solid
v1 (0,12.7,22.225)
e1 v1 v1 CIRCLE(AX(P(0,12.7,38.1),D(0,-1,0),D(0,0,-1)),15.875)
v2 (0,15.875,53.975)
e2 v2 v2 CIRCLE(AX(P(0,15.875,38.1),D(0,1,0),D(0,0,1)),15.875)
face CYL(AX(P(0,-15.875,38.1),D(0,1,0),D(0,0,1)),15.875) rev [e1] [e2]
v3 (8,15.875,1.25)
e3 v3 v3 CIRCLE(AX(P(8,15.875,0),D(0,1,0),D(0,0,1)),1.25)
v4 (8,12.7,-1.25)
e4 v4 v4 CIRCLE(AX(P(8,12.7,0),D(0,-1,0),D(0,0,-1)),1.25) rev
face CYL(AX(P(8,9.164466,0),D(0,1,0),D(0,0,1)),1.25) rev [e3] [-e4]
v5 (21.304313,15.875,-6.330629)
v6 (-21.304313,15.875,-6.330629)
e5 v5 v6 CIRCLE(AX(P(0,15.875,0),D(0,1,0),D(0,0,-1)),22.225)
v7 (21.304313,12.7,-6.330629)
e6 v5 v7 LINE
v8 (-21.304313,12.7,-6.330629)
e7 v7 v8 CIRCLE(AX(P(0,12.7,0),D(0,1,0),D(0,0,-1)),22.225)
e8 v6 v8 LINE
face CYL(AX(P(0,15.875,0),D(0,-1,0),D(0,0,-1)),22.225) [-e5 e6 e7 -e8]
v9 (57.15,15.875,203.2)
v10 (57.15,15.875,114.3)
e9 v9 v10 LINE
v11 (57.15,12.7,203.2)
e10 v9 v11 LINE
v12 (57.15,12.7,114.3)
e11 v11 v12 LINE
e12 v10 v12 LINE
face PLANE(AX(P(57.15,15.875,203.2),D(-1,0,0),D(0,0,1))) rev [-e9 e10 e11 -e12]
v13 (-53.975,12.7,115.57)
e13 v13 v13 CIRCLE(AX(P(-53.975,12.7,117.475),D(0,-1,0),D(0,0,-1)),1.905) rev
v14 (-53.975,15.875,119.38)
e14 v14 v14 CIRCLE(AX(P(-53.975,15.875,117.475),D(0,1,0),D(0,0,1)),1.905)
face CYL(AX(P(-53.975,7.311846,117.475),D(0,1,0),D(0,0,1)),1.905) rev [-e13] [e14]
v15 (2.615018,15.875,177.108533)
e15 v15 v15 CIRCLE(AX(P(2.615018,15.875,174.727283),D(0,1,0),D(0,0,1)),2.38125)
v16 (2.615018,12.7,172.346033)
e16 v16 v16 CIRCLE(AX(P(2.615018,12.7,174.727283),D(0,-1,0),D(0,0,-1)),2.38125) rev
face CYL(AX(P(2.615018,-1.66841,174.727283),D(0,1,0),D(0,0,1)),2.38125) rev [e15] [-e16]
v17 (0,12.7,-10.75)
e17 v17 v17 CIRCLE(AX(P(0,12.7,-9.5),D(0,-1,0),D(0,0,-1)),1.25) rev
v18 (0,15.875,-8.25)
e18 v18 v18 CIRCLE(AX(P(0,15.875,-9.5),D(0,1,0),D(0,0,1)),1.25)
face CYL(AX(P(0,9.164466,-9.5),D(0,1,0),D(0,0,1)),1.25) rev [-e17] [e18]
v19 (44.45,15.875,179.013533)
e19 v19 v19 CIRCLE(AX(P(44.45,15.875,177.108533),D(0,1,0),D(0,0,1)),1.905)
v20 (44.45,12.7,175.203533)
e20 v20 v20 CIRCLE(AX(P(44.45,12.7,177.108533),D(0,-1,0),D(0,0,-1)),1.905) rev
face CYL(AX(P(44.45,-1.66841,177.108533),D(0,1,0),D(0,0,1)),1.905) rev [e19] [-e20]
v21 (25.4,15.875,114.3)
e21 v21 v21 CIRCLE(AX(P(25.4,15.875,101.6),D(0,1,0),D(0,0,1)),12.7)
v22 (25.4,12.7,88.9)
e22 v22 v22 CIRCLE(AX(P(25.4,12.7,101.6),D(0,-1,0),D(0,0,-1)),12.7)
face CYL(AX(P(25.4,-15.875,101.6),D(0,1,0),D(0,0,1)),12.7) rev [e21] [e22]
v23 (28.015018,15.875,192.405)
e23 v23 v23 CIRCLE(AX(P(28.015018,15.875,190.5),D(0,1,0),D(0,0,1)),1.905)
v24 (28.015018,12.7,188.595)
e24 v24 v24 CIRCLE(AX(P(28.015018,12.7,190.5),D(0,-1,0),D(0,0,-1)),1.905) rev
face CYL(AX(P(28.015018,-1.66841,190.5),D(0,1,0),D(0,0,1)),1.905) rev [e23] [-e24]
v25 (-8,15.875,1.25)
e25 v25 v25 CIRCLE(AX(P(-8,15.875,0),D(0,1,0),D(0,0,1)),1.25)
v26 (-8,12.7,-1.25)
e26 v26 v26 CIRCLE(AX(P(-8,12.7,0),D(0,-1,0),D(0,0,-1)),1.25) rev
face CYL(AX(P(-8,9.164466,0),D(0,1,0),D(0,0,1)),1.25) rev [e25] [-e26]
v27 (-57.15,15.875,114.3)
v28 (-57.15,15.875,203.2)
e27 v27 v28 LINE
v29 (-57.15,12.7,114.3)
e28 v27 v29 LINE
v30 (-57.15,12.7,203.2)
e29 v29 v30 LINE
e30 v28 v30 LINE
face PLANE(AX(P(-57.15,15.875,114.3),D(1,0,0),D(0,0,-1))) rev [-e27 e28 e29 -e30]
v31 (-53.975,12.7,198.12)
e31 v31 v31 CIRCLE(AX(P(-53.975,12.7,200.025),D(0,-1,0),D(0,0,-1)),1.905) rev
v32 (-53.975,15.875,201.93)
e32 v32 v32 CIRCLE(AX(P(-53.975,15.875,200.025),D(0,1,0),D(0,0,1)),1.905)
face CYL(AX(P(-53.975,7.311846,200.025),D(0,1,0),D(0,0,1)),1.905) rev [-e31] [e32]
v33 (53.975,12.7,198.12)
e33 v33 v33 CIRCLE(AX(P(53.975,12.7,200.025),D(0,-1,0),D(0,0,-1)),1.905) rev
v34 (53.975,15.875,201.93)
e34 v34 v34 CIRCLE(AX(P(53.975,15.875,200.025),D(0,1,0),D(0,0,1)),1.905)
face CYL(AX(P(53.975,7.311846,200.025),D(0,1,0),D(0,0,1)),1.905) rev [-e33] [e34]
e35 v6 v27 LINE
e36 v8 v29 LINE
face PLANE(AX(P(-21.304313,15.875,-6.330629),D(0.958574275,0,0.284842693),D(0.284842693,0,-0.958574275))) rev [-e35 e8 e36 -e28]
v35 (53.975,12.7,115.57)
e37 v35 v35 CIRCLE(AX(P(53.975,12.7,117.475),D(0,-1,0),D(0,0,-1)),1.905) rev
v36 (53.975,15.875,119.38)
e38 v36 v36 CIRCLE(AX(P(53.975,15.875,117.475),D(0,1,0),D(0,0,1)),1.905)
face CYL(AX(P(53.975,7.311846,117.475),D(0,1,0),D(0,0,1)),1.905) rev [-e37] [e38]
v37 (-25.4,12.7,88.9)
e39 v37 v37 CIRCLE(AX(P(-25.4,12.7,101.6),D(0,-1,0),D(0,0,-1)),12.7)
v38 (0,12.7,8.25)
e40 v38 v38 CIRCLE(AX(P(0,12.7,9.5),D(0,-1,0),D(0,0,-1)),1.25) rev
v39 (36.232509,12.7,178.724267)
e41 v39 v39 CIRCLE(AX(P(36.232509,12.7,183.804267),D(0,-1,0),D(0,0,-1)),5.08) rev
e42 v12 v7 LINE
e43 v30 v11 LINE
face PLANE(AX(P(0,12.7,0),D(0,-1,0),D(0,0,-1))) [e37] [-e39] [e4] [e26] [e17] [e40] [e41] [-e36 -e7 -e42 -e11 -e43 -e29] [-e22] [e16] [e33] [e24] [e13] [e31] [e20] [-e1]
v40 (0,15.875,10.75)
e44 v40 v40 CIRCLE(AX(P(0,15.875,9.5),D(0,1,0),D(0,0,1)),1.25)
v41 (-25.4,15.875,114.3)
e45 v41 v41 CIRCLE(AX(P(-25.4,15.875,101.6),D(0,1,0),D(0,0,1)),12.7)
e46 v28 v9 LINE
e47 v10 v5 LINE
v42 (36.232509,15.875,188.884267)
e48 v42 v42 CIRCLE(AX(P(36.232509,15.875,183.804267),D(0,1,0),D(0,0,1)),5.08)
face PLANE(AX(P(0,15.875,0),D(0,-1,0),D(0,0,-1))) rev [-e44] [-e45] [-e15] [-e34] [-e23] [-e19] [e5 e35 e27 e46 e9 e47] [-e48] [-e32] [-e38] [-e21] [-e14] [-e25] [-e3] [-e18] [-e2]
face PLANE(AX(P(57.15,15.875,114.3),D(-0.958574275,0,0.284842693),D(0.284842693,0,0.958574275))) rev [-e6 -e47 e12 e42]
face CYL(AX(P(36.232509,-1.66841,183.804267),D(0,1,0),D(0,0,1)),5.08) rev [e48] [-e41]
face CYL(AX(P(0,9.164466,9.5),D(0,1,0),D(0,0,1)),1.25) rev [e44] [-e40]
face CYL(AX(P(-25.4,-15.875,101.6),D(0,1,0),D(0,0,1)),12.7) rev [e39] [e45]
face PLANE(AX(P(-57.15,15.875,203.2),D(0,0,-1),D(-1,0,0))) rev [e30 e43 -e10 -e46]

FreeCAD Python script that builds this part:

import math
import FreeCAD as App
import Part
import Sketcher
from FreeCAD import Vector
Q = App.Units.Quantity


def edges_at(feature, points):
    """Names of the edges that pass closest to the given points."""
    edges = feature.Shape.Edges
    near = lambda p: min(range(len(edges)), key=lambda i: edges[i].distToShape(Part.Vertex(*p))[0])
    return sorted({f"Edge{near(p) + 1}" for p in points})

doc = App.newDocument("Part")
body = doc.addObject("PartDesign::Body", "Body")

sketch1 = doc.addObject("Sketcher::SketchObject", "Sketch")
body.addObject(sketch1)
sketch1.AttachmentSupport = (doc.XZ_Plane, [""])
sketch1.MapMode = "FlatFace"
sketch1.addGeometry([
    Part.LineSegment(Vector(-57.15, 114.3, 0), Vector(-57.15, 203.2, 0)),
    Part.LineSegment(Vector(-57.15, 203.2, 0), Vector(57.15, 203.2, 0)),
    Part.LineSegment(Vector(57.15, 203.2, 0), Vector(57.15, 114.3, 0)),
    Part.LineSegment(Vector(57.15, 114.3, 0), Vector(-57.15, 114.3, 0)),
    Part.LineSegment(Vector(50.8, 196.85, 0), Vector(-50.8, 196.85, 0)),
    Part.LineSegment(Vector(-50.8, 196.85, 0), Vector(-50.8, 120.65, 0)),
    Part.LineSegment(Vector(-50.8, 120.65, 0), Vector(50.8, 120.65, 0)),
    Part.LineSegment(Vector(50.8, 120.65, 0), Vector(50.8, 196.85, 0)),
], False)
sketch1.addConstraint([
    Sketcher.Constraint("Coincident", 0, 2, 1, 1),
    Sketcher.Constraint("Coincident", 1, 2, 2, 1),
    Sketcher.Constraint("Coincident", 2, 2, 3, 1),
    Sketcher.Constraint("Coincident", 3, 2, 0, 1),
    Sketcher.Constraint("Coincident", 4, 2, 5, 1),
    Sketcher.Constraint("Coincident", 5, 2, 6, 1),
    Sketcher.Constraint("Coincident", 6, 2, 7, 1),
    Sketcher.Constraint("Coincident", 7, 2, 4, 1),
    Sketcher.Constraint("Vertical", 0),
    Sketcher.Constraint("Horizontal", 1),
    Sketcher.Constraint("Vertical", 2),
    Sketcher.Constraint("Horizontal", 3),
    Sketcher.Constraint("Horizontal", 4),
    Sketcher.Constraint("Vertical", 5),
    Sketcher.Constraint("Horizontal", 6),
    Sketcher.Constraint("Vertical", 7),
    Sketcher.Constraint("DistanceX", 4, 2, 4, 1, Q("4 in")),
    Sketcher.Constraint("DistanceY", 5, 2, 5, 1, Q("3 in")),
    Sketcher.Constraint("DistanceX", 1, 1, 1, 2, Q("4.5 in")),
    Sketcher.Constraint("DistanceY", 0, 1, 0, 2, Q("3.5 in")),
    Sketcher.Constraint("DistanceY", -1, 1, 0, 2, Q("8 in")),
    Sketcher.Constraint("DistanceX", 4, 2, -1, 1, Q("2 in")),
    Sketcher.Constraint("DistanceX", 0, 2, -1, 1, Q("2.25 in")),
    Sketcher.Constraint("DistanceY", -1, 1, 4, 2, Q("7.75 in")),
])
pad1 = doc.addObject("PartDesign::Pad", "Pad")
body.addObject(pad1)
pad1.Profile = sketch1
pad1.Type = "TwoLengths"
pad1.Length = Q("0.5 in")
pad1.Length2 = Q("0.5 in")
pad1.Reversed = True

sketch2 = doc.addObject("Sketcher::SketchObject", "Sketch001")
body.addObject(sketch2)
sketch2.AttachmentSupport = (doc.XZ_Plane, [""])
sketch2.MapMode = "FlatFace"
sketch2.AttachmentOffset = App.Placement(Vector(0, 0, 0.5 * 25.4), App.Rotation())
sketch2.addGeometry([
    Part.LineSegment(Vector(-57.15, 203.2, 0), Vector(-57.15, 114.3, 0)),
    Part.LineSegment(Vector(-57.15, 114.3, 0), Vector(57.15, 114.3, 0)),
    Part.LineSegment(Vector(57.15, 114.3, 0), Vector(57.15, 203.2, 0)),
    Part.LineSegment(Vector(57.15, 203.2, 0), Vector(-57.15, 203.2, 0)),
], False)
sketch2.addConstraint([
    Sketcher.Constraint("Coincident", 0, 2, 1, 1),
    Sketcher.Constraint("Coincident", 1, 2, 2, 1),
    Sketcher.Constraint("Coincident", 2, 2, 3, 1),
    Sketcher.Constraint("Coincident", 3, 2, 0, 1),
    Sketcher.Constraint("Vertical", 0),
    Sketcher.Constraint("Horizontal", 1),
    Sketcher.Constraint("Vertical", 2),
    Sketcher.Constraint("Horizontal", 3),
    Sketcher.Constraint("DistanceX", 1, 1, 1, 2, Q("4.5 in")),
    Sketcher.Constraint("DistanceY", 0, 2, 0, 1, Q("3.5 in")),
    Sketcher.Constraint("DistanceY", -1, 1, 2, 2, Q("8 in")),
    Sketcher.Constraint("DistanceX", 0, 2, -1, 1, Q("2.25 in")),
])
pad2 = doc.addObject("PartDesign::Pad", "Pad001")
body.addObject(pad2)
pad2.Profile = sketch2
pad2.Length = Q("0.125 in")

sketch3 = doc.addObject("Sketcher::SketchObject", "Sketch002")
body.addObject(sketch3)
sketch3.AttachmentSupport = (doc.XZ_Plane, [""])
sketch3.MapMode = "FlatFace"
sketch3.AttachmentOffset = App.Placement(Vector(0, 0, 0.5 * 25.4), App.Rotation())
sketch3.addGeometry([
    Part.LineSegment(Vector(-50.8, 120.65, 0), Vector(-50.8, 146.05, 0)),
    Part.LineSegment(Vector(-50.8, 146.05, 0), Vector(-6.35, 146.05, 0)),
    Part.LineSegment(Vector(-6.35, 146.05, 0), Vector(-6.35, 120.65, 0)),
    Part.LineSegment(Vector(-6.35, 120.65, 0), Vector(-50.8, 120.65, 0)),
    Part.LineSegment(Vector(6.35, 120.65, 0), Vector(6.35, 146.05, 0)),
    Part.LineSegment(Vector(6.35, 146.05, 0), Vector(50.8, 146.05, 0)),
    Part.LineSegment(Vector(50.8, 146.05, 0), Vector(50.8, 120.65, 0)),
    Part.LineSegment(Vector(50.8, 120.65, 0), Vector(6.35, 120.65, 0)),
], False)
sketch3.addConstraint([
    Sketcher.Constraint("Coincident", 0, 2, 1, 1),
    Sketcher.Constraint("Coincident", 1, 2, 2, 1),
    Sketcher.Constraint("Coincident", 2, 2, 3, 1),
    Sketcher.Constraint("Coincident", 3, 2, 0, 1),
    Sketcher.Constraint("Coincident", 4, 2, 5, 1),
    Sketcher.Constraint("Coincident", 5, 2, 6, 1),
    Sketcher.Constraint("Coincident", 6, 2, 7, 1),
    Sketcher.Constraint("Coincident", 7, 2, 4, 1),
    Sketcher.Constraint("Vertical", 0),
    Sketcher.Constraint("Horizontal", 1),
    Sketcher.Constraint("Vertical", 2),
    Sketcher.Constraint("Horizontal", 3),
    Sketcher.Constraint("Vertical", 4),
    Sketcher.Constraint("Horizontal", 5),
    Sketcher.Constraint("Vertical", 6),
    Sketcher.Constraint("Horizontal", 7),
    Sketcher.Constraint("Symmetric", 1, 2, 4, 2, -2),
    Sketcher.Constraint("Symmetric", 3, 2, 6, 2, -2),
    Sketcher.Constraint("DistanceY", 0, 1, 0, 2, Q("1 in")),
    Sketcher.Constraint("DistanceX", 0, 2, -1, 1, Q("2 in")),
    Sketcher.Constraint("DistanceX", 1, 1, 1, 2, Q("1.75 in")),
    Sketcher.Constraint("DistanceY", -1, 1, 0, 2, Q("5.75 in")),
])
pad3 = doc.addObject("PartDesign::Pad", "Pad002")
body.addObject(pad3)
pad3.Profile = sketch3
pad3.Length = Q("0.25 in")
pad3.Reversed = True

sketch4 = doc.addObject("Sketcher::SketchObject", "Sketch003")
body.addObject(sketch4)
sketch4.AttachmentSupport = (doc.YZ_Plane, [""])
sketch4.MapMode = "FlatFace"
sketch4.AttachmentOffset = App.Placement(Vector(0, 0, -2.25 * 25.4), App.Rotation())
sketch4.addGeometry(Part.Circle(Vector(0, 133.35, 0), Vector(0, 0, 1), 9.9695), False)
sketch4.addConstraint([
    Sketcher.Constraint("PointOnObject", 0, 3, -2),
    Sketcher.Constraint("Diameter", 0, Q("0.785 in")),
    Sketcher.Constraint("DistanceY", -1, 1, 0, 3, Q("5.25 in")),
])
pocket1 = doc.addObject("PartDesign::Pocket", "Pocket")
body.addObject(pocket1)
pocket1.Profile = sketch4
pocket1.Type = "ThroughAll"
pocket1.Reversed = True

sketch5 = doc.addObject("Sketcher::SketchObject", "Sketch004")
body.addObject(sketch5)
sketch5.AttachmentSupport = (doc.XZ_Plane, [""])
sketch5.MapMode = "FlatFace"
sketch5.AttachmentOffset = App.Placement(Vector(0, 0, 0.5 * 25.4), App.Rotation())
sketch5.addGeometry([
    Part.LineSegment(Vector(-35.56, 120.65, 0), Vector(-35.56, 146.05, 0)),
    Part.LineSegment(Vector(-35.56, 146.05, 0), Vector(-6.35, 146.05, 0)),
    Part.LineSegment(Vector(-6.35, 146.05, 0), Vector(-6.35, 120.65, 0)),
    Part.LineSegment(Vector(-6.35, 120.65, 0), Vector(-35.56, 120.65, 0)),
    Part.LineSegment(Vector(6.35, 120.65, 0), Vector(6.35, 146.05, 0)),
    Part.LineSegment(Vector(6.35, 146.05, 0), Vector(35.56, 146.05, 0)),
    Part.LineSegment(Vector(35.56, 146.05, 0), Vector(35.56, 120.65, 0)),
    Part.LineSegment(Vector(35.56, 120.65, 0), Vector(6.35, 120.65, 0)),
], False)
sketch5.addConstraint([
    Sketcher.Constraint("Coincident", 0, 2, 1, 1),
    Sketcher.Constraint("Coincident", 1, 2, 2, 1),
    Sketcher.Constraint("Coincident", 2, 2, 3, 1),
    Sketcher.Constraint("Coincident", 3, 2, 0, 1),
    Sketcher.Constraint("Coincident", 4, 2, 5, 1),
    Sketcher.Constraint("Coincident", 5, 2, 6, 1),
    Sketcher.Constraint("Coincident", 6, 2, 7, 1),
    Sketcher.Constraint("Coincident", 7, 2, 4, 1),
    Sketcher.Constraint("Vertical", 0),
    Sketcher.Constraint("Horizontal", 1),
    Sketcher.Constraint("Vertical", 2),
    Sketcher.Constraint("Horizontal", 3),
    Sketcher.Constraint("Vertical", 4),
    Sketcher.Constraint("Horizontal", 5),
    Sketcher.Constraint("Vertical", 6),
    Sketcher.Constraint("Horizontal", 7),
    Sketcher.Constraint("Symmetric", 1, 2, 4, 2, -2),
    Sketcher.Constraint("Symmetric", 3, 2, 6, 2, -2),
    Sketcher.Constraint("DistanceY", 0, 1, 0, 2, Q("1 in")),
    Sketcher.Constraint("DistanceX", 1, 1, 1, 2, Q("1.15 in")),
    Sketcher.Constraint("DistanceX", 0, 2, -1, 1, Q("1.4 in")),
    Sketcher.Constraint("DistanceY", -1, 1, 0, 2, Q("5.75 in")),
])
pad4 = doc.addObject("PartDesign::Pad", "Pad003")
body.addObject(pad4)
pad4.Profile = sketch5
pad4.Length = Q("0.16 in")
pad4.Reversed = True

sketch6 = doc.addObject("Sketcher::SketchObject", "Sketch005")
body.addObject(sketch6)
sketch6.AttachmentSupport = (doc.XY_Plane, [""])
sketch6.MapMode = "FlatFace"
sketch6.AttachmentOffset = App.Placement(Vector(0, 0, 5.75 * 25.4), App.Rotation())
sketch6.addGeometry([
    Part.LineSegment(Vector(-30.48, -9.144, 0), Vector(-30.48, -11.684, 0)),
    Part.LineSegment(Vector(-30.48, -11.684, 0), Vector(-24.13, -11.684, 0)),
    Part.LineSegment(Vector(-24.13, -11.684, 0), Vector(-24.13, -9.144, 0)),
    Part.LineSegment(Vector(-24.13, -9.144, 0), Vector(-30.48, -9.144, 0)),
    Part.LineSegment(Vector(-30.48, -2.54, 0), Vector(-30.48, -5.08, 0)),
    Part.LineSegment(Vector(-30.48, -5.08, 0), Vector(-24.13, -5.08, 0)),
    Part.LineSegment(Vector(-24.13, -5.08, 0), Vector(-24.13, -2.54, 0)),
    Part.LineSegment(Vector(-24.13, -2.54, 0), Vector(-30.48, -2.54, 0)),
    Part.LineSegment(Vector(24.13, -9.144, 0), Vector(24.13, -11.684, 0)),
    Part.LineSegment(Vector(24.13, -11.684, 0), Vector(30.48, -11.684, 0)),
    Part.LineSegment(Vector(30.48, -11.684, 0), Vector(30.48, -9.144, 0)),
    Part.LineSegment(Vector(30.48, -9.144, 0), Vector(24.13, -9.144, 0)),
    Part.LineSegment(Vector(24.13, -2.54, 0), Vector(24.13, -5.08, 0)),
    Part.LineSegment(Vector(24.13, -5.08, 0), Vector(30.48, -5.08, 0)),
    Part.LineSegment(Vector(30.48, -5.08, 0), Vector(30.48, -2.54, 0)),
    Part.LineSegment(Vector(30.48, -2.54, 0), Vector(24.13, -2.54, 0)),
], False)
sketch6.addConstraint([
    Sketcher.Constraint("Coincident", 0, 2, 1, 1),
    Sketcher.Constraint("Coincident", 1, 2, 2, 1),
    Sketcher.Constraint("Coincident", 2, 2, 3, 1),
    Sketcher.Constraint("Coincident", 3, 2, 0, 1),
    Sketcher.Constraint("Coincident", 4, 2, 5, 1),
    Sketcher.Constraint("Coincident", 5, 2, 6, 1),
    Sketcher.Constraint("Coincident", 6, 2, 7, 1),
    Sketcher.Constraint("Coincident", 7, 2, 4, 1),
    Sketcher.Constraint("Coincident", 8, 2, 9, 1),
    Sketcher.Constraint("Coincident", 9, 2, 10, 1),
    Sketcher.Constraint("Coincident", 10, 2, 11, 1),
    Sketcher.Constraint("Coincident", 11, 2, 8, 1),
    Sketcher.Constraint("Coincident", 12, 2, 13, 1),
    Sketcher.Constraint("Coincident", 13, 2, 14, 1),
    Sketcher.Constraint("Coincident", 14, 2, 15, 1),
    Sketcher.Constraint("Coincident", 15, 2, 12, 1),
    Sketcher.Constraint("Vertical", 0),
    Sketcher.Constraint("Horizontal", 1),
    Sketcher.Constraint("Vertical", 2),
    Sketcher.Constraint("Horizontal", 3),
    Sketcher.Constraint("Vertical", 4),
    Sketcher.Constraint("Horizontal", 5),
    Sketcher.Constraint("Vertical", 6),
    Sketcher.Constraint("Horizontal", 7),
    Sketcher.Constraint("Vertical", 8),
    Sketcher.Constraint("Horizontal", 9),
    Sketcher.Constraint("Vertical", 10),
    Sketcher.Constraint("Horizontal", 11),
    Sketcher.Constraint("Vertical", 12),
    Sketcher.Constraint("Horizontal", 13),
    Sketcher.Constraint("Vertical", 14),
    Sketcher.Constraint("Horizontal", 15),
    Sketcher.Constraint("Symmetric", 1, 2, 8, 2, -2),
    Sketcher.Constraint("Symmetric", 3, 2, 10, 2, -2),
    Sketcher.Constraint("Symmetric", 5, 2, 12, 2, -2),
    Sketcher.Constraint("Symmetric", 7, 2, 14, 2, -2),
    Sketcher.Constraint("Vertical", 3, 2, 4, 2),
    Sketcher.Constraint("Vertical", 2, 2, 5, 2),
    Sketcher.Constraint("Equal", 2, 4),
    Sketcher.Constraint("DistanceY", 0, 2, 0, 1, Q("0.1 in")),
    Sketcher.Constraint("DistanceX", 1, 1, 1, 2, Q("0.25 in")),
    Sketcher.Constraint("DistanceX", 0, 2, -1, 1, Q("1.2 in")),
    Sketcher.Constraint("DistanceY", 4, 2, -1, 1, Q("0.2 in")),
    Sketcher.Constraint("DistanceY", 0, 2, -1, 1, Q("0.46 in")),
])
pocket2 = doc.addObject("PartDesign::Pocket", "Pocket001")
body.addObject(pocket2)
pocket2.Profile = sketch6
pocket2.Length = Q("1.25 in")

sketch7 = doc.addObject("Sketcher::SketchObject", "Sketch006")
body.addObject(sketch7)
sketch7.AttachmentSupport = (doc.XY_Plane, [""])
sketch7.MapMode = "FlatFace"
sketch7.AttachmentOffset = App.Placement(Vector(0, 0, 4.75 * 25.4), App.Rotation())
sketch7.addGeometry([
    Part.LineSegment(Vector(-48.26, 12.7, 0), Vector(-48.26, 7.62, 0)),
    Part.LineSegment(Vector(-48.26, 7.62, 0), Vector(-38.1, 7.62, 0)),
    Part.LineSegment(Vector(-38.1, 7.62, 0), Vector(-38.1, 12.7, 0)),
    Part.LineSegment(Vector(-38.1, 12.7, 0), Vector(-48.26, 12.7, 0)),
], False)
sketch7.addConstraint([
    Sketcher.Constraint("Coincident", 0, 2, 1, 1),
    Sketcher.Constraint("Coincident", 1, 2, 2, 1),
    Sketcher.Constraint("Coincident", 2, 2, 3, 1),
    Sketcher.Constraint("Coincident", 3, 2, 0, 1),
    Sketcher.Constraint("Vertical", 0),
    Sketcher.Constraint("Horizontal", 1),
    Sketcher.Constraint("Vertical", 2),
    Sketcher.Constraint("Horizontal", 3),
    Sketcher.Constraint("DistanceX", 1, 1, 1, 2, Q("0.4 in")),
    Sketcher.Constraint("DistanceY", 0, 2, 0, 1, Q("0.2 in")),
    Sketcher.Constraint("DistanceX", 0, 2, -1, 1, Q("1.9 in")),
    Sketcher.Constraint("DistanceY", -1, 1, 0, 2, Q("0.3 in")),
])
pocket3 = doc.addObject("PartDesign::Pocket", "Pocket002")
body.addObject(pocket3)
pocket3.Profile = sketch7
pocket3.Length = Q("0.25 in")

sketch8 = doc.addObject("Sketcher::SketchObject", "Sketch007")
body.addObject(sketch8)
sketch8.AttachmentSupport = (doc.XZ_Plane, [""])
sketch8.MapMode = "FlatFace"
sketch8.AttachmentOffset = App.Placement(Vector(0, 0, -0.5 * 25.4), App.Rotation())
sketch8.addGeometry([
    Part.Circle(Vector(-53.975, 117.475, 0), Vector(0, 0, 1), 0.635),
    Part.Circle(Vector(53.975, 117.475, 0), Vector(0, 0, 1), 0.635),
    Part.Circle(Vector(-53.975, 200.025, 0), Vector(0, 0, 1), 0.635),
    Part.Circle(Vector(53.975, 200.025, 0), Vector(0, 0, 1), 0.635),
], False)
sketch8.addConstraint([
    Sketcher.Constraint("Equal", 0, 1),
    Sketcher.Constraint("Equal", 1, 2),
    Sketcher.Constraint("Equal", 2, 3),
    Sketcher.Constraint("Symmetric", 0, 3, 1, 3, -2),
    Sketcher.Constraint("Symmetric", 2, 3, 3, 3, -2),
    Sketcher.Constraint("Vertical", 0, 3, 2, 3),
    Sketcher.Constraint("Diameter", 0, Q("0.05 in")),
    Sketcher.Constraint("DistanceX", 0, 3, 1, 3, Q("4.25 in")),
    Sketcher.Constraint("DistanceY", 0, 3, 2, 3, Q("3.25 in")),
    Sketcher.Constraint("DistanceY", -1, 1, 0, 3, Q("4.625 in")),
])
pocket4 = doc.addObject("PartDesign::Pocket", "Pocket003")
body.addObject(pocket4)
pocket4.Profile = sketch8
pocket4.Length = Q("1 in")
pocket4.Reversed = True

sketch9 = doc.addObject("Sketcher::SketchObject", "Sketch008")
body.addObject(sketch9)
sketch9.AttachmentSupport = (doc.YZ_Plane, [""])
sketch9.MapMode = "FlatFace"
sketch9.AttachmentOffset = App.Placement(Vector(0, 0, 2.25 * 25.4), App.Rotation())
sketch9.addGeometry([
    Part.LineSegment(Vector(12.7, 203.2, 0), Vector(12.7, 203.454, 0)),
    Part.LineSegment(Vector(12.7, 203.454, 0), Vector(15.875, 203.454, 0)),
    Part.LineSegment(Vector(15.875, 203.454, 0), Vector(15.875, 204.724, 0)),
    Part.LineSegment(Vector(15.875, 204.724, 0), Vector(-15.875, 213.231387, 0)),
    Part.LineSegment(Vector(-15.875, 213.231387, 0), Vector(-15.875, 203.2, 0)),
    Part.LineSegment(Vector(-15.875, 203.2, 0), Vector(12.7, 203.2, 0)),
], False)
sketch9.addConstraint([
    Sketcher.Constraint("Coincident", 0, 2, 1, 1),
    Sketcher.Constraint("Coincident", 1, 2, 2, 1),
    Sketcher.Constraint("Coincident", 2, 2, 3, 1),
    Sketcher.Constraint("Coincident", 3, 2, 4, 1),
    Sketcher.Constraint("Coincident", 4, 2, 5, 1),
    Sketcher.Constraint("Coincident", 5, 2, 0, 1),
    Sketcher.Constraint("Vertical", 0),
    Sketcher.Constraint("Horizontal", 1),
    Sketcher.Constraint("Vertical", 2),
    Sketcher.Constraint("Vertical", 4),
    Sketcher.Constraint("Horizontal", 5),
    Sketcher.Constraint("DistanceY", -1, 1, 4, 2, Q("8 in")),
    Sketcher.Constraint("Angle", 3, Q("165 deg")),
    Sketcher.Constraint("DistanceY", 0, 1, 0, 2, Q("0.01 in")),
    Sketcher.Constraint("DistanceY", 2, 1, 2, 2, Q("0.05 in")),
    Sketcher.Constraint("DistanceX", -1, 1, 0, 2, Q("0.5 in")),
    Sketcher.Constraint("DistanceX", 1, 1, 1, 2, Q("0.125 in")),
    Sketcher.Constraint("DistanceX", 5, 1, 5, 2, Q("1.125 in")),
])
pad5 = doc.addObject("PartDesign::Pad", "Pad004")
body.addObject(pad5)
pad5.Profile = sketch9
pad5.Length = Q("4.5 in")
pad5.Reversed = True

sketch10 = doc.addObject("Sketcher::SketchObject", "Sketch009")
body.addObject(sketch10)
sketch10.AttachmentSupport = (doc.XZ_Plane, [""])
sketch10.MapMode = "FlatFace"
sketch10.AttachmentOffset = App.Placement(Vector(0, 0, 0.625 * 25.4), App.Rotation())
sketch10.addGeometry([
    Part.LineSegment(Vector(57.15, 171.45, 0), Vector(95.25, 171.45, 0)),
    Part.LineSegment(Vector(95.25, 171.45, 0), Vector(95.25, 128.27, 0)),
    Part.LineSegment(Vector(95.25, 128.27, 0), Vector(100.33, 128.27, 0)),
    Part.LineSegment(Vector(100.33, 128.27, 0), Vector(100.33, 176.536201, 0)),
    Part.LineSegment(Vector(100.33, 176.536201, 0), Vector(57.15, 184.15, 0)),
    Part.LineSegment(Vector(57.15, 184.15, 0), Vector(57.15, 171.45, 0)),
    Part.LineSegment(Vector(-57.15, 184.15, 0), Vector(-100.33, 176.536201, 0)),
    Part.LineSegment(Vector(-100.33, 176.536201, 0), Vector(-100.33, 128.27, 0)),
    Part.LineSegment(Vector(-100.33, 128.27, 0), Vector(-95.25, 128.27, 0)),
    Part.LineSegment(Vector(-95.25, 128.27, 0), Vector(-95.25, 171.45, 0)),
    Part.LineSegment(Vector(-95.25, 171.45, 0), Vector(-57.15, 171.45, 0)),
    Part.LineSegment(Vector(-57.15, 171.45, 0), Vector(-57.15, 184.15, 0)),
], False)
sketch10.addConstraint([
    Sketcher.Constraint("Coincident", 0, 2, 1, 1),
    Sketcher.Constraint("Coincident", 1, 2, 2, 1),
    Sketcher.Constraint("Coincident", 2, 2, 3, 1),
    Sketcher.Constraint("Coincident", 3, 2, 4, 1),
    Sketcher.Constraint("Coincident", 4, 2, 5, 1),
    Sketcher.Constraint("Coincident", 5, 2, 0, 1),
    Sketcher.Constraint("Coincident", 6, 2, 7, 1),
    Sketcher.Constraint("Coincident", 7, 2, 8, 1),
    Sketcher.Constraint("Coincident", 8, 2, 9, 1),
    Sketcher.Constraint("Coincident", 9, 2, 10, 1),
    Sketcher.Constraint("Coincident", 10, 2, 11, 1),
    Sketcher.Constraint("Coincident", 11, 2, 6, 1),
    Sketcher.Constraint("Horizontal", 0),
    Sketcher.Constraint("Vertical", 1),
    Sketcher.Constraint("Horizontal", 2),
    Sketcher.Constraint("Vertical", 3),
    Sketcher.Constraint("Vertical", 5),
    Sketcher.Constraint("Vertical", 7),
    Sketcher.Constraint("Horizontal", 8),
    Sketcher.Constraint("Vertical", 9),
    Sketcher.Constraint("Horizontal", 10),
    Sketcher.Constraint("Vertical", 11),
    Sketcher.Constraint("Symmetric", 3, 2, 6, 2, -2),
    Sketcher.Constraint("Symmetric", 1, 2, 8, 2, -2),
    Sketcher.Constraint("Symmetric", 5, 2, 10, 2, -2),
    Sketcher.Constraint("Horizontal", 4, 2, 11, 2),
    Sketcher.Constraint("DistanceX", 0, 1, 0, 2, Q("1.5 in")),
    Sketcher.Constraint("DistanceX", 2, 1, 2, 2, Q("0.2 in")),
    Sketcher.Constraint("DistanceY", 1, 2, 1, 1, Q("1.7 in")),
    Sketcher.Constraint("DistanceY", 5, 2, 5, 1, Q("0.5 in")),
    Sketcher.Constraint("Angle", 4, Q("170 deg")),
    Sketcher.Constraint("DistanceX", 8, 2, 5, 2, Q("6 in")),
    Sketcher.Constraint("DistanceY", -1, 1, 0, 2, Q("6.75 in")),
])
pad6 = doc.addObject("PartDesign::Pad", "Pad005")
body.addObject(pad6)
pad6.Profile = sketch10
pad6.Length = Q("1.125 in")
pad6.Reversed = True
doc.recompute()

fillet = doc.addObject("PartDesign::Fillet", "Fillet")
body.addObject(fillet)
fillet.Base = (pad6, edges_at(pad6, [
    (57.15, -1.587, 184.15),
    (100.33, -1.587, 176.536),
    (95.25, -1.587, 171.45),
    (-100.33, -1.587, 176.536),
    (-57.15, -1.587, 184.15),
    (-95.25, -1.587, 171.45),
]))
fillet.Radius = Q("0.375 in")
doc.recompute()

fillet2 = doc.addObject("PartDesign::Fillet", "Fillet001")
body.addObject(fillet2)
fillet2.Base = (fillet, edges_at(fillet, [(57.15, -1.587, 171.45), (-57.15, -1.587, 171.45)]))
fillet2.Radius = Q("0.2 in")
doc.recompute()

fillet3 = doc.addObject("PartDesign::Fillet", "Fillet002")
body.addObject(fillet3)
fillet3.Base = (fillet2, edges_at(fillet2, [
    (97.79, -15.875, 128.27),
    (97.79, 12.7, 128.27),
    (-97.79, -15.875, 128.27),
    (-97.79, 12.7, 128.27),
]))
fillet3.Radius = Q("0.375 in")
body2 = doc.addObject("PartDesign::Body", "Body001")

sketch11 = doc.addObject("Sketcher::SketchObject", "Sketch010")
body2.addObject(sketch11)
sketch11.AttachmentSupport = (doc.getObject("XZ_Plane001"), [""])
sketch11.MapMode = "FlatFace"
sketch11.AttachmentOffset = App.Placement(Vector(0, 0, -0.5 * 25.4), App.Rotation())
sketch11.addGeometry([
    Part.LineSegment(Vector(-21.304313, -6.330629, 0), Vector(-57.15, 114.3, 0)),
    Part.LineSegment(Vector(-57.15, 114.3, 0), Vector(-57.15, 203.2, 0)),
    Part.LineSegment(Vector(-57.15, 203.2, 0), Vector(57.15, 203.2, 0)),
    Part.LineSegment(Vector(57.15, 203.2, 0), Vector(57.15, 114.3, 0)),
    Part.LineSegment(Vector(57.15, 114.3, 0), Vector(21.304313, -6.330629, 0)),
    Part.ArcOfCircle(Part.Circle(Vector(0, 0, 0), Vector(0, 0, 1), 22.225), math.radians(-163.450554), math.radians(-16.549446)),
], False)
sketch11.addConstraint([
    Sketcher.Constraint("Coincident", 0, 2, 1, 1),
    Sketcher.Constraint("Coincident", 1, 2, 2, 1),
    Sketcher.Constraint("Coincident", 2, 2, 3, 1),
    Sketcher.Constraint("Coincident", 3, 2, 4, 1),
    Sketcher.Constraint("Tangent", 4, 2, 5, 2),
    Sketcher.Constraint("Tangent", 5, 1, 0, 1),
    Sketcher.Constraint("Vertical", 1),
    Sketcher.Constraint("Horizontal", 2),
    Sketcher.Constraint("Vertical", 3),
    Sketcher.Constraint("Coincident", 5, 3, -1, 1),
    Sketcher.Constraint("Symmetric", 0, 2, 3, 2, -2),
    Sketcher.Constraint("DistanceX", 2, 1, 2, 2, Q("4.5 in")),
    Sketcher.Constraint("DistanceY", 1, 1, 1, 2, Q("3.5 in")),
    Sketcher.Constraint("DistanceY", -1, 1, 1, 2, Q("8 in")),
    Sketcher.Constraint("Radius", 5, Q("0.875 in")),
])
pad7 = doc.addObject("PartDesign::Pad", "Pad006")
body2.addObject(pad7)
pad7.Profile = sketch11
pad7.Length = Q("0.125 in")
pad7.Reversed = True

sketch12 = doc.addObject("Sketcher::SketchObject", "Sketch011")
body2.addObject(sketch12)
sketch12.AttachmentSupport = (doc.getObject("XZ_Plane001"), [""])
sketch12.MapMode = "FlatFace"
sketch12.AttachmentOffset = App.Placement(Vector(0, 0, -0.625 * 25.4), App.Rotation())
sketch12.addGeometry([
    Part.Circle(Vector(-53.975, 117.475, 0), Vector(0, 0, 1), 1.905),
    Part.Circle(Vector(-53.975, 200.025, 0), Vector(0, 0, 1), 1.905),
    Part.Circle(Vector(53.975, 200.025, 0), Vector(0, 0, 1), 1.905),
    Part.Circle(Vector(53.975, 117.475, 0), Vector(0, 0, 1), 1.905),
], False)
sketch12.addConstraint([
    Sketcher.Constraint("Equal", 0, 1),
    Sketcher.Constraint("Equal", 1, 2),
    Sketcher.Constraint("Equal", 2, 3),
    Sketcher.Constraint("Symmetric", 1, 3, 2, 3, -2),
    Sketcher.Constraint("Symmetric", 0, 3, 3, 3, -2),
    Sketcher.Constraint("Vertical", 0, 3, 1, 3),
    Sketcher.Constraint("Diameter", 0, Q("0.15 in")),
    Sketcher.Constraint("DistanceY", 0, 3, 1, 3, Q("3.25 in")),
    Sketcher.Constraint("DistanceX", 1, 3, 2, 3, Q("4.25 in")),
    Sketcher.Constraint("DistanceY", -1, 1, 0, 3, Q("4.625 in")),
])
pocket5 = doc.addObject("PartDesign::Pocket", "Pocket004")
body2.addObject(pocket5)
pocket5.Profile = sketch12
pocket5.Length = Q("0.125 in")
pocket5.Reversed = True

sketch13 = doc.addObject("Sketcher::SketchObject", "Sketch012")
body2.addObject(sketch13)
sketch13.AttachmentSupport = (doc.getObject("XZ_Plane001"), [""])
sketch13.MapMode = "FlatFace"
sketch13.AttachmentOffset = App.Placement(Vector(0, 0, -0.625 * 25.4), App.Rotation())
sketch13.addGeometry([
    Part.Circle(Vector(36.232509, 183.804267, 0), Vector(0, 0, 1), 5.08),
    Part.Circle(Vector(44.45, 177.108533, 0), Vector(0, 0, 1), 1.905),
    Part.Circle(Vector(28.015018, 190.5, 0), Vector(0, 0, 1), 1.905),
    Part.Circle(Vector(2.615018, 174.727283, 0), Vector(0, 0, 1), 2.38125),
], False)
sketch13.addConstraint([
    Sketcher.Constraint("Equal", 1, 2),
    Sketcher.Constraint("Diameter", 0, Q("0.4 in")),
    Sketcher.Constraint("Diameter", 1, Q("0.15 in")),
    Sketcher.Constraint("Diameter", 3, Q("0.1875 in")),
    Sketcher.Constraint("DistanceX", 3, 3, 2, 3, Q("1 in")),
    Sketcher.Constraint("DistanceY", -1, 1, 2, 3, Q("7.5 in")),
    Sketcher.Constraint("DistanceX", -1, 1, 1, 3, Q("1.75 in")),
    Sketcher.Constraint("DistanceY", 3, 3, 1, 3, Q("0.09375 in")),
    Sketcher.Constraint("DistanceX", -1, 1, 0, 3, Q("36.232509 mm")),
    Sketcher.Constraint("DistanceX", -1, 1, 2, 3, Q("28.015018 mm")),
    Sketcher.Constraint("DistanceY", -1, 1, 0, 3, Q("183.804267 mm")),
    Sketcher.Constraint("DistanceY", -1, 1, 1, 3, Q("177.108533 mm")),
])
pocket6 = doc.addObject("PartDesign::Pocket", "Pocket005")
body2.addObject(pocket6)
pocket6.Profile = sketch13
pocket6.Length = Q("0.125 in")
pocket6.Reversed = True

sketch14 = doc.addObject("Sketcher::SketchObject", "Sketch013")
body2.addObject(sketch14)
sketch14.AttachmentSupport = (doc.getObject("XZ_Plane001"), [""])
sketch14.MapMode = "FlatFace"
sketch14.AttachmentOffset = App.Placement(Vector(0, 0, -0.625 * 25.4), App.Rotation())
sketch14.addGeometry([
    Part.Circle(Vector(0, -9.5, 0), Vector(0, 0, 1), 1.25),
    Part.Circle(Vector(0, 9.5, 0), Vector(0, 0, 1), 1.25),
    Part.Circle(Vector(-8, 0, 0), Vector(0, 0, 1), 1.25),
    Part.Circle(Vector(8, 0, 0), Vector(0, 0, 1), 1.25),
], False)
sketch14.addConstraint([
    Sketcher.Constraint("Equal", 0, 1),
    Sketcher.Constraint("Equal", 1, 2),
    Sketcher.Constraint("Equal", 2, 3),
    Sketcher.Constraint("Symmetric", 0, 3, 1, 3, -1, 1),
    Sketcher.Constraint("Symmetric", 2, 3, 3, 3, -1, 1),
    Sketcher.Constraint("PointOnObject", 0, 3, -2),
    Sketcher.Constraint("PointOnObject", 2, 3, -1),
    Sketcher.Constraint("Diameter", 0, Q("2.5 mm")),
    Sketcher.Constraint("DistanceY", 0, 3, -1, 1, Q("9.5 mm")),
    Sketcher.Constraint("DistanceX", 2, 3, -1, 1, Q("8 mm")),
])
pocket7 = doc.addObject("PartDesign::Pocket", "Pocket006")
body2.addObject(pocket7)
pocket7.Profile = sketch14
pocket7.Length = Q("0.125 in")
pocket7.Reversed = True

sketch15 = doc.addObject("Sketcher::SketchObject", "Sketch014")
body2.addObject(sketch15)
sketch15.AttachmentSupport = (doc.getObject("XZ_Plane001"), [""])
sketch15.MapMode = "FlatFace"
sketch15.AttachmentOffset = App.Placement(Vector(0, 0, -0.625 * 25.4), App.Rotation())
sketch15.addGeometry([
    Part.Circle(Vector(0, 38.1, 0), Vector(0, 0, 1), 15.875),
    Part.Circle(Vector(-25.4, 101.6, 0), Vector(0, 0, 1), 12.7),
    Part.Circle(Vector(25.4, 101.6, 0), Vector(0, 0, 1), 12.7),
], False)
sketch15.addConstraint([
    Sketcher.Constraint("Equal", 1, 2),
    Sketcher.Constraint("Symmetric", 1, 3, 2, 3, -2),
    Sketcher.Constraint("PointOnObject", 0, 3, -2),
    Sketcher.Constraint("Diameter", 1, Q("1 in")),
    Sketcher.Constraint("Diameter", 0, Q("1.25 in")),
    Sketcher.Constraint("DistanceX", 1, 3, -1, 1, Q("1 in")),
    Sketcher.Constraint("DistanceY", -1, 1, 1, 3, Q("4 in")),
    Sketcher.Constraint("DistanceY", -1, 1, 0, 3, Q("1.5 in")),
])
pocket8 = doc.addObject("PartDesign::Pocket", "Pocket007")
body2.addObject(pocket8)
pocket8.Profile = sketch15
pocket8.Type = "ThroughAll"
pocket8.Reversed = True
body.Visibility = False

doc.recompute()
